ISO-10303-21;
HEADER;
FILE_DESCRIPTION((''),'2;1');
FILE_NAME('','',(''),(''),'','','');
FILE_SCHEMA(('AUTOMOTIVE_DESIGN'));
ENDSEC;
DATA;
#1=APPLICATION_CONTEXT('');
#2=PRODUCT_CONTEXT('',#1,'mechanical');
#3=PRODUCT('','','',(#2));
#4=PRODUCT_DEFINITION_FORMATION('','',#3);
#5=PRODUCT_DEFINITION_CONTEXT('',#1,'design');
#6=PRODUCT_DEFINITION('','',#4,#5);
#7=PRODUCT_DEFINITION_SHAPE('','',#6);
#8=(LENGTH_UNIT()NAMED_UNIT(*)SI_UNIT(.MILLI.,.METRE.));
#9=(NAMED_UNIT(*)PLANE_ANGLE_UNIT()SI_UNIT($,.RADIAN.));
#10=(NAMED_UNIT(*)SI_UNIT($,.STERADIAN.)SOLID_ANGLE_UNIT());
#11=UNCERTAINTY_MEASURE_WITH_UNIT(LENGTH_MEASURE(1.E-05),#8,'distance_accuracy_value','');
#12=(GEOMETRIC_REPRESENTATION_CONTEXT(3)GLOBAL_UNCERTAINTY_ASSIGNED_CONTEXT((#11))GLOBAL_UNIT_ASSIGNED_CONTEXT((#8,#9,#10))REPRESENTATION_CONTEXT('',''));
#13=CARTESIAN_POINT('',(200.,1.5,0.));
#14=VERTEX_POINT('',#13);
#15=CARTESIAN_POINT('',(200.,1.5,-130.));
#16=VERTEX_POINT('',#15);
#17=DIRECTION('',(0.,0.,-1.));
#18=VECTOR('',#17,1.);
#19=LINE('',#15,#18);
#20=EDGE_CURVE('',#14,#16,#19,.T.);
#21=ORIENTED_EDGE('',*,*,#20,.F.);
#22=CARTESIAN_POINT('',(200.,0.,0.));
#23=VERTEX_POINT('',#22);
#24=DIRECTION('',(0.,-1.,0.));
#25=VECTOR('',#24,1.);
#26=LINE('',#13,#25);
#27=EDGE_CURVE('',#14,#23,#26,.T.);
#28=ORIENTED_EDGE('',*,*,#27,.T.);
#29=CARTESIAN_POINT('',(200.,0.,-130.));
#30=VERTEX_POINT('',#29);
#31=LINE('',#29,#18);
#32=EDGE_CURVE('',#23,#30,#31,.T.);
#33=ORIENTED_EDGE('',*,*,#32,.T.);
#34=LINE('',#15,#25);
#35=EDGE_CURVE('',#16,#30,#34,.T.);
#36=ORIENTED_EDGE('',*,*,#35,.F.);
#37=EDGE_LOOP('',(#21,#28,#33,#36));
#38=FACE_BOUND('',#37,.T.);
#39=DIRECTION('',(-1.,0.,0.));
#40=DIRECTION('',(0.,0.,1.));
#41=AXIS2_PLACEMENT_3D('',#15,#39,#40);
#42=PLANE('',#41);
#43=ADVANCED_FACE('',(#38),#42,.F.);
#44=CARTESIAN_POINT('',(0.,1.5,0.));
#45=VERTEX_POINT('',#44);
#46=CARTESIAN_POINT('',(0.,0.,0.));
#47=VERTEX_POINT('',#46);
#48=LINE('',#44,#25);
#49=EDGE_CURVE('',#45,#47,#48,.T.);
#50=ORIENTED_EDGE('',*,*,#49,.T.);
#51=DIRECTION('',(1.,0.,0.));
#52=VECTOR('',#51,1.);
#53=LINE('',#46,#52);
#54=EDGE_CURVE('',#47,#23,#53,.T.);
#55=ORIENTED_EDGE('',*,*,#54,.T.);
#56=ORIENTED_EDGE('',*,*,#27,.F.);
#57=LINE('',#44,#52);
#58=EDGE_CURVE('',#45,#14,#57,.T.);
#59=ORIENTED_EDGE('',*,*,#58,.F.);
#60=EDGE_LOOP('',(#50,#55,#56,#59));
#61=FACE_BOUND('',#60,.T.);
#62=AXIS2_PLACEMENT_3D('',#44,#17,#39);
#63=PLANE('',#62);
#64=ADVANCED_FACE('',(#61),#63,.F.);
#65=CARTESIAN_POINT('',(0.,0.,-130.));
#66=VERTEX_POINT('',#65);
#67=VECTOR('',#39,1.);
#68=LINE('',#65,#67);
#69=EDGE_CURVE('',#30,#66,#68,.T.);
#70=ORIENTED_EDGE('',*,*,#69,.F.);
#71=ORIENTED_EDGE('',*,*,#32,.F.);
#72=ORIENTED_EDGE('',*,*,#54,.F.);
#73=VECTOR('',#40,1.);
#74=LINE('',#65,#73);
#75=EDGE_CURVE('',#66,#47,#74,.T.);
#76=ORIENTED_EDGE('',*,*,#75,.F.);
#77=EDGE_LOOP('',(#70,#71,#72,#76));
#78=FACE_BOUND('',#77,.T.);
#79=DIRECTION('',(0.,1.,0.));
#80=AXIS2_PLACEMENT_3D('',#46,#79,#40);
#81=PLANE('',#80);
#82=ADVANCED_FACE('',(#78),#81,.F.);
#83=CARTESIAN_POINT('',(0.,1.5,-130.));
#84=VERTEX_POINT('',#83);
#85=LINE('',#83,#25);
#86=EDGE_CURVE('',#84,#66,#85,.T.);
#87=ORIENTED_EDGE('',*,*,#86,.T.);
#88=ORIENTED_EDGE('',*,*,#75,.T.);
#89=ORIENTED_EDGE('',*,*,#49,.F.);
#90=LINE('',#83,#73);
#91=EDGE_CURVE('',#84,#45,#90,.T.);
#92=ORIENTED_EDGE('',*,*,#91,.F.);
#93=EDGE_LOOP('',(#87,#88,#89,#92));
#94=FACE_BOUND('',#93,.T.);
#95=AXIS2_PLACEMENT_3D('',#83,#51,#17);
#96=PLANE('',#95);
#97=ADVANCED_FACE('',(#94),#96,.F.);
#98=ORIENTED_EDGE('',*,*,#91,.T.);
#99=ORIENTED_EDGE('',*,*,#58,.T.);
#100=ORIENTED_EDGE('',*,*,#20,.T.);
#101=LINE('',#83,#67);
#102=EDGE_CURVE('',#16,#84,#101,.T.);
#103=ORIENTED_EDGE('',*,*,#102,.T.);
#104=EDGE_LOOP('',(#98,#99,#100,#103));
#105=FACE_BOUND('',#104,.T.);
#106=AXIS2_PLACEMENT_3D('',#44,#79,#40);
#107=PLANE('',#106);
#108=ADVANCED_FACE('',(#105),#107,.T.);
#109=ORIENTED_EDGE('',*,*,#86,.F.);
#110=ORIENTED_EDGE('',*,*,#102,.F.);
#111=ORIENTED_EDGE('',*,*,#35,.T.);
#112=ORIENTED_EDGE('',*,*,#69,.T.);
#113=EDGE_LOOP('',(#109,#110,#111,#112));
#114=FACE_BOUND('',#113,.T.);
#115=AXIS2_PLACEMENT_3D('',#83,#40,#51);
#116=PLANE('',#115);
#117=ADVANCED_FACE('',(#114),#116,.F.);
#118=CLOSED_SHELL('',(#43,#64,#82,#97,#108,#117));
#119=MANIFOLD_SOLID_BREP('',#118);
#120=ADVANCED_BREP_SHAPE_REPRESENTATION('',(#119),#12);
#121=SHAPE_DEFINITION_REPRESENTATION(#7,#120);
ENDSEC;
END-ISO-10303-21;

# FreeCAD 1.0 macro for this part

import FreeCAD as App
import Part
import Sketcher


def add_polygon(sketch, points):
    """Adds a closed chain of lines whose ends are joined by coincident constraints."""
    first, n = sketch.GeometryCount, len(points)
    for a, b in zip(points, points[1:] + points[:1]):
        sketch.addGeometry(Part.LineSegment(App.Vector(*a, 0), App.Vector(*b, 0)), False)
    for i in range(n):
        sketch.addConstraint(Sketcher.Constraint("Coincident", first + i, 2, first + (i + 1) % n, 1))

doc = App.newDocument("Part")
body = doc.addObject("PartDesign::Body", "Body")

sketch1 = body.newObject("Sketcher::SketchObject", "Sketch")
sketch1.AttachmentSupport = (doc.getObject("XZ_Plane"), [""])
sketch1.MapMode = "FlatFace"
add_polygon(sketch1, [(0, -130), (0, 0), (200, 0), (200, -130)])
sketch1.addConstraint([
    Sketcher.Constraint("Vertical", 0),
    Sketcher.Constraint("Horizontal", 1),
    Sketcher.Constraint("Vertical", 2),
    Sketcher.Constraint("Horizontal", 3),
    Sketcher.Constraint("Coincident", 0, 2, -1, 1),
    Sketcher.Constraint("DistanceX", 1, 1, 1, 2, 200.0),
    Sketcher.Constraint("DistanceY", 0, 1, 0, 2, 130.0),
])
pad1 = body.newObject("PartDesign::Pad", "Pad")
pad1.Profile = sketch1
pad1.Length = 1.5
pad1.Reversed = True

doc.recompute()
